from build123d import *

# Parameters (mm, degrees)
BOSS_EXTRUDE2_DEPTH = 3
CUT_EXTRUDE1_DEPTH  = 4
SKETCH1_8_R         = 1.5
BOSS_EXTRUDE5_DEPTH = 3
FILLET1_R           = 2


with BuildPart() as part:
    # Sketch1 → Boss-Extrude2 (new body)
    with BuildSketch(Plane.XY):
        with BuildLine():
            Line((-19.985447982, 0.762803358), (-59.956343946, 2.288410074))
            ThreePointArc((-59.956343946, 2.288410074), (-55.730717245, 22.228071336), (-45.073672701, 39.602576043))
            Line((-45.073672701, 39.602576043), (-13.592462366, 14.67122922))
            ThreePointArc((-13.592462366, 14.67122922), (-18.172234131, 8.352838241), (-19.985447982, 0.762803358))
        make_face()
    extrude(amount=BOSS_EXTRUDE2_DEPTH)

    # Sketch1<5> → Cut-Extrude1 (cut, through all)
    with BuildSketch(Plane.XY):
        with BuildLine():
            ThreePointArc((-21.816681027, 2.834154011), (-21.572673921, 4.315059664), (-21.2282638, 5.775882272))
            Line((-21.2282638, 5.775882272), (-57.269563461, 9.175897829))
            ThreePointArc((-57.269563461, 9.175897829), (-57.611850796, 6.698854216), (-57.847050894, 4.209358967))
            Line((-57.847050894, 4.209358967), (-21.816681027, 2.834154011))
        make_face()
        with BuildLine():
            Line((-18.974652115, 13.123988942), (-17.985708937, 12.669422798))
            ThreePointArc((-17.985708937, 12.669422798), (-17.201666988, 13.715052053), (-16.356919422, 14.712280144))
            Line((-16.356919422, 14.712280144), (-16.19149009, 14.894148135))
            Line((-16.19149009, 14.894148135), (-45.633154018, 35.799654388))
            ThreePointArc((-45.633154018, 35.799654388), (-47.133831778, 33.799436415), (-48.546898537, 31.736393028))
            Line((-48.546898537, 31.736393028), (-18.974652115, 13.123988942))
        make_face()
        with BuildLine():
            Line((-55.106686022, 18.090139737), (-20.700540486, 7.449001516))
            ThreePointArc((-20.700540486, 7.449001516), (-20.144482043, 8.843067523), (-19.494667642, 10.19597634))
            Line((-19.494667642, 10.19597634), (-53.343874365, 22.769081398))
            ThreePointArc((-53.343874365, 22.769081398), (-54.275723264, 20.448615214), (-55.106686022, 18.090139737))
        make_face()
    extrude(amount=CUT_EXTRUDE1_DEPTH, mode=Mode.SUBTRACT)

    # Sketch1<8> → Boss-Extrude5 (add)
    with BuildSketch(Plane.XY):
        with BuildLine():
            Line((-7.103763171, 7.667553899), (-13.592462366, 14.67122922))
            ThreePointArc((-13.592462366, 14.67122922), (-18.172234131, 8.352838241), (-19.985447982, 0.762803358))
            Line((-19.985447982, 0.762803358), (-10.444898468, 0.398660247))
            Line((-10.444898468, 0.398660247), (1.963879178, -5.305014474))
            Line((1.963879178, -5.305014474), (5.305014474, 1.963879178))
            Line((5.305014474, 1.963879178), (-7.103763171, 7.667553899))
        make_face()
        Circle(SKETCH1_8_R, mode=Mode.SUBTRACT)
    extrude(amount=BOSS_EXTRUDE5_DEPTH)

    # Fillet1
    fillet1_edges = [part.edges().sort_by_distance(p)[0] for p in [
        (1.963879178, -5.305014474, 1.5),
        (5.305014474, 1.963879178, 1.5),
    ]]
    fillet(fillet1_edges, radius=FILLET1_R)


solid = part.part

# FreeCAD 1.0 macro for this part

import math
import FreeCAD as App
import Part
import Sketcher

V = App.Vector
Q = App.Units.Quantity


def edges_at(feature, points):
    """Names of the edges that pass closest to the given points."""
    edges = feature.Shape.Edges
    near = lambda p: min(range(len(edges)), key=lambda i: edges[i].distToShape(Part.Vertex(*p))[0])
    return sorted({f"Edge{near(p) + 1}" for p in points})

doc = App.newDocument("Part")
params = doc.addObject("Spreadsheet::Sheet", "Params")
for row, (alias, value) in enumerate([
    ("sketch1_radius", "20 mm"),
    ("sketch1_radius2", "60 mm"),
    ("pad1_length", "3 mm"),
    ("sketch2_radius", "22 mm"),
    ("sketch2_radius2", "58.000001 mm"),
    ("sketch3_diameter", "3 mm"),
    ("sketch3_radius", "20 mm"),
    ("sketch3_length", "8 mm"),
    ("pad2_length", "3 mm"),
    ("fillet_radius", "2 mm"),
], start=1):
    params.set(f"A{row}", alias)
    params.set(f"B{row}", "=" + value)
    params.setAlias(f"B{row}", alias)

body = doc.addObject("PartDesign::Body", "Body")

sketch1 = doc.addObject("Sketcher::SketchObject", "Sketch")
body.addObject(sketch1)
sketch1.AttachmentSupport = (doc.XY_Plane, [""])
sketch1.MapMode = "FlatFace"
sketch1.addGeometry([
    Part.LineSegment(V(-60, 2, 0), V(-20, 1, 0)),
    Part.ArcOfCircle(Part.Circle(V(0, 0, 0), V(0, 0, 1), 20), math.radians(133), math.radians(178)),
    Part.LineSegment(V(-14, 15, 0), V(-45, 40, 0)),
    Part.ArcOfCircle(Part.Circle(V(0, 0, 0), V(0, 0, 1), 60), math.radians(139), math.radians(178)),
], False)
sketch1.addConstraint([
    Sketcher.Constraint("Coincident", 0, 2, 1, 2),
    Sketcher.Constraint("Coincident", 1, 1, 2, 1),
    Sketcher.Constraint("Coincident", 2, 2, 3, 1),
    Sketcher.Constraint("Coincident", 3, 2, 0, 1),
    Sketcher.Constraint("Coincident", 1, 3, -1, 1),
    Sketcher.Constraint("Coincident", 3, 3, -1, 1),
    Sketcher.Constraint("Radius", 1, Q("20 mm")),
    Sketcher.Constraint("Radius", 3, Q("60 mm")),
    Sketcher.Constraint("DistanceY", -1, 1, 1, 1, Q("14.671229 mm")),
    Sketcher.Constraint("DistanceY", -1, 1, 3, 2, Q("2.28841 mm")),
    Sketcher.Constraint("DistanceX", 2, 2, 1, 1, Q("31.48121 mm")),
    Sketcher.Constraint("DistanceX", 0, 2, -1, 1, Q("19.985448 mm")),
])
sketch1.setExpression("Constraints[6]", "Params.sketch1_radius")
sketch1.setExpression("Constraints[7]", "Params.sketch1_radius2")
pad1 = doc.addObject("PartDesign::Pad", "Pad")
body.addObject(pad1)
pad1.Profile = sketch1
pad1.setExpression("Length", "Params.pad1_length")

sketch2 = doc.addObject("Sketcher::SketchObject", "Sketch001")
body.addObject(sketch2)
sketch2.AttachmentSupport = (doc.XY_Plane, [""])
sketch2.MapMode = "FlatFace"
sketch2.addGeometry([
    Part.ArcOfCircle(Part.Circle(V(0, 0, 0), V(0, 0, 1), 22), math.radians(164.78), math.radians(172.6)),
    Part.LineSegment(V(-21.23, 5.78, 0), V(-57.27, 9.18, 0)),
    Part.ArcOfCircle(Part.Circle(V(0, 0, 0), V(0, 0, 1), 58), math.radians(170.9), math.radians(175.84)),
    Part.LineSegment(V(-57.85, 4.21, 0), V(-21.82, 2.83, 0)),
    Part.LineSegment(V(-18.97, 13.12, 0), V(-17.99, 12.67, 0)),
    Part.ArcOfCircle(Part.Circle(V(0, 0, 0), V(0, 0, 1), 22), math.radians(138.03), math.radians(144.84)),
    Part.LineSegment(V(-16.36, 14.71, 0), V(-16.19, 14.89, 0)),
    Part.LineSegment(V(-16.19, 14.89, 0), V(-45.63, 35.8, 0)),
    Part.ArcOfCircle(Part.Circle(V(0, 0, 0), V(0, 0, 1), 58), math.radians(141.89), math.radians(146.83)),
    Part.LineSegment(V(-48.55, 31.74, 0), V(-18.97, 13.12, 0)),
    Part.LineSegment(V(-55.11, 18.09, 0), V(-20.7, 7.45, 0)),
    Part.ArcOfCircle(Part.Circle(V(0, 0, 0), V(0, 0, 1), 22), math.radians(152.39), math.radians(160.21)),
    Part.LineSegment(V(-19.49, 10.2, 0), V(-53.34, 22.77, 0)),
    Part.ArcOfCircle(Part.Circle(V(0, 0, 0), V(0, 0, 1), 58), math.radians(156.89), math.radians(161.83)),
], False)
sketch2.addConstraint([
    Sketcher.Constraint("Coincident", 0, 1, 1, 1),
    Sketcher.Constraint("Coincident", 1, 2, 2, 1),
    Sketcher.Constraint("Coincident", 2, 2, 3, 1),
    Sketcher.Constraint("Coincident", 3, 2, 0, 2),
    Sketcher.Constraint("Coincident", 4, 2, 5, 2),
    Sketcher.Constraint("Coincident", 5, 1, 6, 1),
    Sketcher.Constraint("Coincident", 6, 2, 7, 1),
    Sketcher.Constraint("Coincident", 7, 2, 8, 1),
    Sketcher.Constraint("Coincident", 8, 2, 9, 1),
    Sketcher.Constraint("Coincident", 9, 2, 4, 1),
    Sketcher.Constraint("Coincident", 10, 2, 11, 2),
    Sketcher.Constraint("Coincident", 11, 1, 12, 1),
    Sketcher.Constraint("Coincident", 12, 2, 13, 1),
    Sketcher.Constraint("Coincident", 13, 2, 10, 1),
    Sketcher.Constraint("Coincident", 0, 3, -1, 1),
    Sketcher.Constraint("Coincident", 2, 3, -1, 1),
    Sketcher.Constraint("Coincident", 5, 3, -1, 1),
    Sketcher.Constraint("Coincident", 8, 3, -1, 1),
    Sketcher.Constraint("Coincident", 11, 3, -1, 1),
    Sketcher.Constraint("Coincident", 13, 3, -1, 1),
    Sketcher.Constraint("Equal", 0, 5),
    Sketcher.Constraint("Equal", 2, 8),
    Sketcher.Constraint("Equal", 5, 11),
    Sketcher.Constraint("Equal", 8, 13),
    Sketcher.Constraint("Equal", 7, 12),
    Sketcher.Constraint("Radius", 0, Q("22 mm")),
    Sketcher.Constraint("Radius", 2, Q("58.000001 mm")),
    Sketcher.Constraint("DistanceY", -1, 1, 10, 2, Q("7.449002 mm")),
    Sketcher.Constraint("DistanceX", 8, 2, -1, 1, Q("48.546899 mm")),
    Sketcher.Constraint("DistanceX", 1, 2, 0, 1, Q("36.0413 mm")),
    Sketcher.Constraint("Distance", 4, Q("1.088411 mm")),
    Sketcher.Constraint("Distance", 6, Q("0.245851 mm")),
    Sketcher.Constraint("DistanceX", 2, 2, -1, 1, Q("57.847051 mm")),
    Sketcher.Constraint("DistanceX", 3, 2, -1, 1, Q("21.816681 mm")),
    Sketcher.Constraint("DistanceX", 4, 2, -1, 1, Q("17.985709 mm")),
    Sketcher.Constraint("DistanceX", 5, 1, -1, 1, Q("16.356919 mm")),
    Sketcher.Constraint("DistanceX", 6, 2, -1, 1, Q("16.19149 mm")),
    Sketcher.Constraint("DistanceY", -1, 1, 9, 2, Q("13.123989 mm")),
    Sketcher.Constraint("DistanceY", -1, 1, 12, 2, Q("22.769081 mm")),
    Sketcher.Constraint("DistanceY", -1, 1, 13, 2, Q("18.09014 mm")),
    Sketcher.Constraint("DistanceY", 8, 3, 0, 1, Q("5.775882 mm")),
    Sketcher.Constraint("DistanceX", 1, 2, 7, 2, Q("11.636409 mm")),
])
sketch2.setExpression("Constraints[25]", "Params.sketch2_radius")
sketch2.setExpression("Constraints[26]", "Params.sketch2_radius2")
pocket1 = doc.addObject("PartDesign::Pocket", "Pocket")
body.addObject(pocket1)
pocket1.Profile = sketch2
pocket1.Type = "ThroughAll"
pocket1.Reversed = True

sketch3 = doc.addObject("Sketcher::SketchObject", "Sketch002")
body.addObject(sketch3)
sketch3.AttachmentSupport = (doc.XY_Plane, [""])
sketch3.MapMode = "FlatFace"
sketch3.addGeometry([
    Part.LineSegment(V(-7.1, 7.7, 0), V(-13.6, 14.7, 0)),
    Part.ArcOfCircle(Part.Circle(V(0, 0, 0), V(0, 0, 1), 20), math.radians(133), math.radians(178)),
    Part.LineSegment(V(-20, 0.8, 0), V(-10.4, 0.4, 0)),
    Part.LineSegment(V(-10.4, 0.4, 0), V(2, -5.3, 0)),
    Part.LineSegment(V(2, -5.3, 0), V(5.3, 2, 0)),
    Part.LineSegment(V(5.3, 2, 0), V(-7.1, 7.7, 0)),
    Part.Circle(V(0, 0, 0), V(0, 0, 1), 1.5),
], False)
sketch3.addConstraint([
    Sketcher.Constraint("Coincident", 0, 2, 1, 1),
    Sketcher.Constraint("Coincident", 1, 2, 2, 1),
    Sketcher.Constraint("Coincident", 2, 2, 3, 1),
    Sketcher.Constraint("Coincident", 3, 2, 4, 1),
    Sketcher.Constraint("Coincident", 4, 2, 5, 1),
    Sketcher.Constraint("Coincident", 5, 2, 0, 1),
    Sketcher.Constraint("Coincident", 1, 3, -1, 1),
    Sketcher.Constraint("Coincident", 6, 3, -1, 1),
    Sketcher.Constraint("Perpendicular", 3, 4),
    Sketcher.Constraint("Perpendicular", 4, 5),
    Sketcher.Constraint("Equal", 0, 2),
    Sketcher.Constraint("Equal", 3, 5),
    Sketcher.Constraint("Diameter", 6, Q("3 mm")),
    Sketcher.Constraint("Radius", 1, Q("20 mm")),
    Sketcher.Constraint("Distance", 4, Q("8 mm")),
    Sketcher.Constraint("DistanceX", 2, 2, -1, 1, Q("10.444898 mm")),
    Sketcher.Constraint("DistanceX", 0, 2, 5, 2, Q("6.488699 mm")),
    Sketcher.Constraint("DistanceY", -1, 1, 0, 2, Q("14.671229 mm")),
    Sketcher.Constraint("DistanceX", -1, 1, 3, 2, Q("1.963879 mm")),
    Sketcher.Constraint("DistanceX", 1, 2, 2, 2, Q("9.54055 mm")),
])
sketch3.setExpression("Constraints[12]", "Params.sketch3_diameter")
sketch3.setExpression("Constraints[13]", "Params.sketch3_radius")
sketch3.setExpression("Constraints[14]", "Params.sketch3_length")
pad2 = doc.addObject("PartDesign::Pad", "Pad001")
body.addObject(pad2)
pad2.Profile = sketch3
pad2.setExpression("Length", "Params.pad2_length")
doc.recompute()

fillet = doc.addObject("PartDesign::Fillet", "Fillet")
body.addObject(fillet)
fillet.Base = (pad2, edges_at(pad2, [(1.964, -5.305, 1.5), (5.305, 1.964, 1.5)]))
fillet.setExpression("Radius", "Params.fillet_radius")

doc.recompute()
